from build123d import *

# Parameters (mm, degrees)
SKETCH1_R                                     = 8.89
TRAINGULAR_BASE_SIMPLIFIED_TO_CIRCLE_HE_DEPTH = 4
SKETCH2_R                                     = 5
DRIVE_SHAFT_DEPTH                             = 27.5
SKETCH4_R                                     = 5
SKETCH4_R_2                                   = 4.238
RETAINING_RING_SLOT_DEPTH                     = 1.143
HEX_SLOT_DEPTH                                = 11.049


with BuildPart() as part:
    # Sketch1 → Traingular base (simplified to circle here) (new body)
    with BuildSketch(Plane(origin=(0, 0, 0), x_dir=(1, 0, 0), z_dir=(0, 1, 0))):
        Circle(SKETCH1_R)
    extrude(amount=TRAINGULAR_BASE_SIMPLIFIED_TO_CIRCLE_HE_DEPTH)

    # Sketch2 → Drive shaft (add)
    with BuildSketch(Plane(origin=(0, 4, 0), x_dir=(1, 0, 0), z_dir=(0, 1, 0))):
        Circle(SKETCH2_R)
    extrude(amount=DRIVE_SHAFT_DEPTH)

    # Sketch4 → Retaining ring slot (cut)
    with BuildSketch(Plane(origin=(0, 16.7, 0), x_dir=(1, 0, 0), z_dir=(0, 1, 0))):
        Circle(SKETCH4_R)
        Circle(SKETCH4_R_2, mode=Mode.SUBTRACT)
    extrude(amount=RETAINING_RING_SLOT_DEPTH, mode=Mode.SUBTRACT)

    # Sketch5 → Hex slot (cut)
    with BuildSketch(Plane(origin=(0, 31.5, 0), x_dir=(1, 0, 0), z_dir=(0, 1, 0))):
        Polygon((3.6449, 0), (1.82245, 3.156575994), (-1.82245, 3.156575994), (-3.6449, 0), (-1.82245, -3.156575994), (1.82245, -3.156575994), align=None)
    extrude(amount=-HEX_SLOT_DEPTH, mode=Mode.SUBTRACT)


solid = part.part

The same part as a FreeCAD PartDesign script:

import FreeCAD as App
import Part
import Sketcher

V = App.Vector
Q = App.Units.Quantity


def add_polygon(sketch, points):
    """Adds a closed chain of lines whose ends are joined by coincident constraints."""
    first, n = sketch.GeometryCount, len(points)
    for a, b in zip(points, points[1:] + points[:1]):
        sketch.addGeometry(Part.LineSegment(App.Vector(*a, 0), App.Vector(*b, 0)), False)
    for i in range(n):
        sketch.addConstraint(Sketcher.Constraint("Coincident", first + i, 2, first + (i + 1) % n, 1))

doc = App.newDocument("Part")
params = doc.addObject("Spreadsheet::Sheet", "Params")
for row, (alias, value) in enumerate([
    ("sketch1_diameter", "17.78 mm"),
    ("pad1_length", "4 mm"),
    ("sketch2_diameter", "10 mm"),
    ("pad2_length", "27.5 mm"),
    ("sketch3_diameter", "10 mm"),
    ("pocket1_length", "1.143 mm"),
    ("pocket2_length", "11.049 mm"),
], start=1):
    params.set(f"A{row}", alias)
    params.set(f"B{row}", "=" + value)
    params.setAlias(f"B{row}", alias)

body = doc.addObject("PartDesign::Body", "Body")

# Sketch on XZ plane
sketch1 = doc.addObject("Sketcher::SketchObject", "Sketch")
body.addObject(sketch1)
sketch1.AttachmentSupport = (doc.XZ_Plane, [""])
sketch1.MapMode = "FlatFace"
sketch1.addGeometry(Part.Circle(V(0, 0, 0), V(0, 0, 1), 8.89), False)
sketch1.addConstraint([
    Sketcher.Constraint("Coincident", 0, 3, -1, 1),
    Sketcher.Constraint("Diameter", 0, Q("17.78 mm")),
])
sketch1.setExpression("Constraints[1]", "Params.sketch1_diameter")
pad1 = doc.addObject("PartDesign::Pad", "Pad")
body.addObject(pad1)
pad1.Profile = sketch1
pad1.setExpression("Length", "Params.pad1_length")
pad1.Reversed = True

# Sketch on XZ plane
sketch2 = doc.addObject("Sketcher::SketchObject", "Sketch001")
body.addObject(sketch2)
sketch2.AttachmentSupport = (doc.XZ_Plane, [""])
sketch2.MapMode = "FlatFace"
sketch2.AttachmentOffset = App.Placement(V(0, 0, -4), App.Rotation())
sketch2.addGeometry(Part.Circle(V(0, 0, 0), V(0, 0, 1), 5), False)
sketch2.addConstraint([
    Sketcher.Constraint("Coincident", 0, 3, -1, 1),
    Sketcher.Constraint("Diameter", 0, Q("10 mm")),
])
sketch2.setExpression("Constraints[1]", "Params.sketch2_diameter")
pad2 = doc.addObject("PartDesign::Pad", "Pad001")
body.addObject(pad2)
pad2.Profile = sketch2
pad2.setExpression("Length", "Params.pad2_length")
pad2.Reversed = True

# Sketch on XZ plane
sketch3 = doc.addObject("Sketcher::SketchObject", "Sketch002")
body.addObject(sketch3)
sketch3.AttachmentSupport = (doc.XZ_Plane, [""])
sketch3.MapMode = "FlatFace"
sketch3.AttachmentOffset = App.Placement(V(0, 0, -16.7), App.Rotation())
sketch3.addGeometry([
    Part.Circle(V(0, 0, 0), V(0, 0, 1), 5),
    Part.Circle(V(0, 0, 0), V(0, 0, 1), 4.238),
], False)
sketch3.addConstraint([
    Sketcher.Constraint("Coincident", 0, 3, -1, 1),
    Sketcher.Constraint("Coincident", 1, 3, -1, 1),
    Sketcher.Constraint("Diameter", 0, Q("10 mm")),
    Sketcher.Constraint("Diameter", 1, Q("8.476 mm")),
])
sketch3.setExpression("Constraints[2]", "Params.sketch3_diameter")
pocket1 = doc.addObject("PartDesign::Pocket", "Pocket")
body.addObject(pocket1)
pocket1.Profile = sketch3
pocket1.setExpression("Length", "Params.pocket1_length")

# Sketch on XZ plane
sketch4 = doc.addObject("Sketcher::SketchObject", "Sketch003")
body.addObject(sketch4)
sketch4.AttachmentSupport = (doc.XZ_Plane, [""])
sketch4.MapMode = "FlatFace"
sketch4.AttachmentOffset = App.Placement(V(0, 0, -31.5), App.Rotation())
add_polygon(sketch4, [(3.6449, 0), (1.82245, -3.156576), (-1.82245, -3.156576), (-3.6449, 0), (-1.82245, 3.156576), (1.82245, 3.156576)])  # lines 0-5
sketch4.addConstraint([
    Sketcher.Constraint("Horizontal", 1),
    Sketcher.Constraint("Horizontal", 4),
    Sketcher.Constraint("Symmetric", 0, 2, 3, 2, -1, 1),
    Sketcher.Constraint("Symmetric", 2, 2, 5, 2, -1, 1),
    Sketcher.Constraint("PointOnObject", 2, 2, -1),
    Sketcher.Constraint("Parallel", 2, 5),
    Sketcher.Constraint("Vertical", 1, 2, 3, 2),
    Sketcher.Constraint("Angle", 0, Q("-120 deg")),
    Sketcher.Constraint("DistanceX", 1, 2, 1, 1, Q("3.6449 mm")),
    Sketcher.Constraint("Distance", 0, Q("3.6449 mm")),
])
pocket2 = doc.addObject("PartDesign::Pocket", "Pocket001")
body.addObject(pocket2)
pocket2.Profile = sketch4
pocket2.setExpression("Length", "Params.pocket2_length")
pocket2.Reversed = True

doc.recompute()
